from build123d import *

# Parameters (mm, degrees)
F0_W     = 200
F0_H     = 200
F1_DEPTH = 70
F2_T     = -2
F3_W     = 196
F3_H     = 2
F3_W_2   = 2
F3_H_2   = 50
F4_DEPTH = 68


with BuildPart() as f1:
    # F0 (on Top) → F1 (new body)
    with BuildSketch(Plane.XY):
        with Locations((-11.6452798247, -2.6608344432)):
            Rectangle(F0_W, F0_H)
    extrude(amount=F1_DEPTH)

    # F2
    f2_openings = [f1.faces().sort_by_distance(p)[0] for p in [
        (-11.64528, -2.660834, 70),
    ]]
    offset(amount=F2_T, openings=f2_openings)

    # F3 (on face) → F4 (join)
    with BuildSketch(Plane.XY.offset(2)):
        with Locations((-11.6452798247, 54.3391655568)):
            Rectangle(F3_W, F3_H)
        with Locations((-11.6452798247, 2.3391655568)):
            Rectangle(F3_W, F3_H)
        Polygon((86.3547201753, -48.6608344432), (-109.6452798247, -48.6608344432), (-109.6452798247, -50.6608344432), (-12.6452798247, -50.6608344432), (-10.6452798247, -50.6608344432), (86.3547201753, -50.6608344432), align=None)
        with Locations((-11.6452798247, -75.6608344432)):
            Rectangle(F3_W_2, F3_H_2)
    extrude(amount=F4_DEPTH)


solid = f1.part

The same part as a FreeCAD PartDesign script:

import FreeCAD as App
import Part
import Sketcher

V = App.Vector
Q = App.Units.Quantity


def faces_at(feature, points):
    """Names of the faces that lie closest to the given points."""
    faces = feature.Shape.Faces
    near = lambda p: min(range(len(faces)), key=lambda i: faces[i].distToShape(Part.Vertex(*p))[0])
    return sorted({f"Face{near(p) + 1}" for p in points})


def add_polygon(sketch, points):
    """Adds a closed chain of lines whose ends are joined by coincident constraints."""
    first, n = sketch.GeometryCount, len(points)
    for a, b in zip(points, points[1:] + points[:1]):
        sketch.addGeometry(Part.LineSegment(App.Vector(*a, 0), App.Vector(*b, 0)), False)
    for i in range(n):
        sketch.addConstraint(Sketcher.Constraint("Coincident", first + i, 2, first + (i + 1) % n, 1))

doc = App.newDocument("Part")
params = doc.addObject("Spreadsheet::Sheet", "Params")
for row, (alias, value) in enumerate([
    ("sketch1_width", "200 mm"),
    ("pad1_length", "70 mm"),
    ("thickness_wall", "2 mm"),
    ("sketch2_width", "196 mm"),
    ("sketch2_width2", "97 mm"),
    ("sketch2_height", "50 mm"),
    ("pad2_length", "68 mm"),
], start=1):
    params.set(f"A{row}", alias)
    params.set(f"B{row}", "=" + value)
    params.setAlias(f"B{row}", alias)

body = doc.addObject("PartDesign::Body", "Body")

# Sketch on XY plane
sketch1 = body.newObject("Sketcher::SketchObject", "Sketch")
sketch1.AttachmentSupport = (doc.getObject("XY_Plane"), [""])
sketch1.MapMode = "FlatFace"
add_polygon(sketch1, [(-111.64528, 97.339166), (-111.64528, -102.660834), (88.35472, -102.660834), (88.35472, 97.339166)])  # lines 0-3
sketch1.addConstraint([
    Sketcher.Constraint("Vertical", 0),
    Sketcher.Constraint("Horizontal", 1),
    Sketcher.Constraint("Vertical", 2),
    Sketcher.Constraint("Horizontal", 3),
    Sketcher.Constraint("Equal", 3, 0),
    Sketcher.Constraint("DistanceX", 1, 1, 1, 2, Q("200 mm")),
    Sketcher.Constraint("DistanceX", 0, 2, -1, 1, Q("111.64528 mm")),
    Sketcher.Constraint("DistanceY", 0, 2, -1, 1, Q("102.660834 mm")),
])
sketch1.setExpression("Constraints[9]", "Params.sketch1_width")
pad1 = body.newObject("PartDesign::Pad", "Pad")
pad1.Profile = sketch1
pad1.setExpression("Length", "Params.pad1_length")
doc.recompute()

thickness = body.newObject("PartDesign::Thickness", "Thickness")
thickness.Base = (pad1, faces_at(pad1, [(-11.645, -2.661, 70)]))
thickness.setExpression("Value", "Params.thickness_wall")
thickness.Reversed = True
thickness.Join = "Arc"

# Sketch on XY plane
sketch2 = body.newObject("Sketcher::SketchObject", "Sketch001")
sketch2.AttachmentSupport = (doc.getObject("XY_Plane"), [""])
sketch2.MapMode = "FlatFace"
sketch2.AttachmentOffset = App.Placement(V(0, 0, 2), App.Rotation())
add_polygon(sketch2, [(-109.64528, 55.339166), (-109.64528, 53.339166), (86.35472, 53.339166), (86.35472, 55.339166)])  # lines 0-3
add_polygon(sketch2, [(-109.64528, 3.339166), (-109.64528, 1.339166), (86.35472, 1.339166), (86.35472, 3.339166)])  # lines 4-7
add_polygon(sketch2, [(86.35472, -48.660834), (-109.64528, -48.660834), (-109.64528, -50.660834), (-12.64528, -50.660834), (-12.64528, -100.660834), (-10.64528, -100.660834), (-10.64528, -50.660834), (86.35472, -50.660834)])  # lines 8-15
sketch2.addConstraint([
    Sketcher.Constraint("Vertical", 0),
    Sketcher.Constraint("Horizontal", 1),
    Sketcher.Constraint("Vertical", 2),
    Sketcher.Constraint("Horizontal", 3),
    Sketcher.Constraint("Vertical", 4),
    Sketcher.Constraint("Horizontal", 5),
    Sketcher.Constraint("Vertical", 6),
    Sketcher.Constraint("Horizontal", 7),
    Sketcher.Constraint("Horizontal", 8),
    Sketcher.Constraint("Vertical", 9),
    Sketcher.Constraint("Horizontal", 10),
    Sketcher.Constraint("Vertical", 11),
    Sketcher.Constraint("Horizontal", 12),
    Sketcher.Constraint("Vertical", 13),
    Sketcher.Constraint("Horizontal", 14),
    Sketcher.Constraint("Vertical", 15),
    Sketcher.Constraint("Horizontal", 10, 2, 13, 2),
    Sketcher.Constraint("Vertical", 3, 2, 4, 2),
    Sketcher.Constraint("Vertical", 2, 2, 5, 2),
    Sketcher.Constraint("Vertical", 7, 2, 8, 2),
    Sketcher.Constraint("Vertical", 6, 2, 14, 2),
    Sketcher.Constraint("Equal", 10, 14),
    Sketcher.Constraint("Equal", 12, 0),
    Sketcher.Constraint("Equal", 2, 4),
    Sketcher.Constraint("Equal", 6, 9),
    Sketcher.Constraint("DistanceX", 1, 1, 1, 2, Q("196 mm")),
    Sketcher.Constraint("DistanceX", 10, 1, 10, 2, Q("97 mm")),
    Sketcher.Constraint("DistanceY", 11, 2, 11, 1, Q("50 mm")),
    Sketcher.Constraint("DistanceY", 4, 2, 0, 2, Q("52 mm")),
    Sketcher.Constraint("DistanceY", 8, 2, 4, 2, Q("50 mm")),
    Sketcher.Constraint("DistanceX", 0, 2, -1, 1, Q("109.64528 mm")),
    Sketcher.Constraint("DistanceY", -1, 1, 0, 2, Q("53.339166 mm")),
])
sketch2.setExpression("Constraints[41]", "Params.sketch2_width")
sketch2.setExpression("Constraints[42]", "Params.sketch2_width2")
sketch2.setExpression("Constraints[43]", "Params.sketch2_height")
pad2 = body.newObject("PartDesign::Pad", "Pad001")
pad2.Profile = sketch2
pad2.setExpression("Length", "Params.pad2_length")

doc.recompute()
